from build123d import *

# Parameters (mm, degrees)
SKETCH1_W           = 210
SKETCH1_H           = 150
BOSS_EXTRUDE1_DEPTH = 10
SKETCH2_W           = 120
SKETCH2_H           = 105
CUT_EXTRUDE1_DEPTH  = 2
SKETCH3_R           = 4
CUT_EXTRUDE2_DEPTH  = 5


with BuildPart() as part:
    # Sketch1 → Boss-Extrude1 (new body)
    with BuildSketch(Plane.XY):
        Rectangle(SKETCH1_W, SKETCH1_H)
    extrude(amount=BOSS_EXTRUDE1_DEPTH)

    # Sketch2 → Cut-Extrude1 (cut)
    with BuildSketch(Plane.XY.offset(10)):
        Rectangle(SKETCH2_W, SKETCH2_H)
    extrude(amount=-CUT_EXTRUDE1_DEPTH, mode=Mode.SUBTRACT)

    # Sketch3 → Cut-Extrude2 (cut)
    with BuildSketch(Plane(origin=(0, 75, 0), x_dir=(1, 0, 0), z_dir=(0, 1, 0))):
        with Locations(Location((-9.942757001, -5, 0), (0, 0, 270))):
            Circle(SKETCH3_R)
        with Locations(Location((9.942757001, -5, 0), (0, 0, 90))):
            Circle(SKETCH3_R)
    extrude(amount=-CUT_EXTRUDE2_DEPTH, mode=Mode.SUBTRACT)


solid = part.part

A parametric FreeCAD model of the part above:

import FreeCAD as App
import Part
import Sketcher

V = App.Vector


def add_polygon(sketch, points):
    """Adds a closed chain of lines whose ends are joined by coincident constraints."""
    first, n = sketch.GeometryCount, len(points)
    for a, b in zip(points, points[1:] + points[:1]):
        sketch.addGeometry(Part.LineSegment(App.Vector(*a, 0), App.Vector(*b, 0)), False)
    for i in range(n):
        sketch.addConstraint(Sketcher.Constraint("Coincident", first + i, 2, first + (i + 1) % n, 1))

doc = App.newDocument("Part")
body = doc.addObject("PartDesign::Body", "Body")

# Sketch on XY plane
sketch1 = doc.addObject("Sketcher::SketchObject", "Sketch")
body.addObject(sketch1)
sketch1.AttachmentSupport = (doc.XY_Plane, [""])
sketch1.MapMode = "FlatFace"
add_polygon(sketch1, [(-105, 75), (-105, -75), (105, -75), (105, 75)])  # lines 0-3
sketch1.addConstraint(Sketcher.Constraint("Vertical", 0))
sketch1.addConstraint(Sketcher.Constraint("Horizontal", 1))
sketch1.addConstraint(Sketcher.Constraint("Vertical", 2))
sketch1.addConstraint(Sketcher.Constraint("Horizontal", 3))
sketch1.addConstraint(Sketcher.Constraint("Symmetric", 0, 2, 2, 2, -1, 1))
sketch1.addConstraint(Sketcher.Constraint("DistanceX", 1, 1, 1, 2, 210.0))
sketch1.addConstraint(Sketcher.Constraint("DistanceY", 0, 2, 0, 1, 150.0))
pad1 = doc.addObject("PartDesign::Pad", "Pad")
body.addObject(pad1)
pad1.Profile = sketch1
pad1.Length = 10

# Sketch on XY plane
sketch2 = doc.addObject("Sketcher::SketchObject", "Sketch001")
body.addObject(sketch2)
sketch2.AttachmentSupport = (doc.XY_Plane, [""])
sketch2.MapMode = "FlatFace"
sketch2.AttachmentOffset = App.Placement(V(0, 0, 10), App.Rotation())
add_polygon(sketch2, [(-60, 52.5), (-60, -52.5), (60, -52.5), (60, 52.5)])  # lines 0-3
sketch2.addConstraint(Sketcher.Constraint("Vertical", 0))
sketch2.addConstraint(Sketcher.Constraint("Horizontal", 1))
sketch2.addConstraint(Sketcher.Constraint("Vertical", 2))
sketch2.addConstraint(Sketcher.Constraint("Horizontal", 3))
sketch2.addConstraint(Sketcher.Constraint("Symmetric", 0, 2, 2, 2, -1, 1))
sketch2.addConstraint(Sketcher.Constraint("DistanceX", 1, 1, 1, 2, 120.0))
sketch2.addConstraint(Sketcher.Constraint("DistanceY", 0, 2, 0, 1, 105.0))
pocket1 = doc.addObject("PartDesign::Pocket", "Pocket")
body.addObject(pocket1)
pocket1.Profile = sketch2
pocket1.Length = 2

# Sketch on XZ plane
sketch3 = doc.addObject("Sketcher::SketchObject", "Sketch002")
body.addObject(sketch3)
sketch3.AttachmentSupport = (doc.XZ_Plane, [""])
sketch3.MapMode = "FlatFace"
sketch3.AttachmentOffset = App.Placement(V(0, 0, -75), App.Rotation())
sketch3.addGeometry(Part.Circle(V(-9.942757, 5, 0), V(0, 0, 1), 4), False)
sketch3.addGeometry(Part.Circle(V(9.942757, 5, 0), V(0, 0, 1), 4), False)
sketch3.addConstraint(Sketcher.Constraint("Equal", 0, 1))
sketch3.addConstraint(Sketcher.Constraint("Symmetric", 0, 3, 1, 3, -2))
sketch3.addConstraint(Sketcher.Constraint("Diameter", 0, 8.0))
sketch3.addConstraint(Sketcher.Constraint("DistanceY", -1, 1, 0, 3, 5.0))
sketch3.addConstraint(Sketcher.Constraint("DistanceX", 0, 3, -1, 1, 9.942757))
pocket2 = doc.addObject("PartDesign::Pocket", "Pocket001")
body.addObject(pocket2)
pocket2.Profile = sketch3
pocket2.Length = 5
pocket2.Reversed = True

doc.recompute()
